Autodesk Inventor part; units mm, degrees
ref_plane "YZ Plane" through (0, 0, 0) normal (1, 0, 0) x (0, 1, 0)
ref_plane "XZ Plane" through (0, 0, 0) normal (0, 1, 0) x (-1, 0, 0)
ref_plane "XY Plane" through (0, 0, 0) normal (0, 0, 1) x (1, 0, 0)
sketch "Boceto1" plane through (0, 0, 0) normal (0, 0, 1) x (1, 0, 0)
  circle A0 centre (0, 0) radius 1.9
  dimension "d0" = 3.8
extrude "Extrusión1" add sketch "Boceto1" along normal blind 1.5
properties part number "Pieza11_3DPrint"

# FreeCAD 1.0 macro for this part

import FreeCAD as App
import Part
import Sketcher

V = App.Vector
Q = App.Units.Quantity

doc = App.newDocument("Part")
params = doc.addObject("Spreadsheet::Sheet", "Params")
for row, (alias, value) in enumerate([
    ("sketch1_diameter", "3.8 mm"),
    ("pad1_length", "1.5 mm"),
], start=1):
    params.set(f"A{row}", alias)
    params.set(f"B{row}", "=" + value)
    params.setAlias(f"B{row}", alias)

body = doc.addObject("PartDesign::Body", "Body")

sketch1 = body.newObject("Sketcher::SketchObject", "Sketch")
sketch1.AttachmentSupport = (doc.getObject("XY_Plane"), [""])
sketch1.MapMode = "FlatFace"
sketch1.addGeometry(Part.Circle(V(0, 0, 0), V(0, 0, 1), 1.9), False)
sketch1.addConstraint(Sketcher.Constraint("Coincident", 0, 3, -1, 1))
sketch1.addConstraint(Sketcher.Constraint("Diameter", 0, Q("3.8 mm")))
sketch1.setExpression("Constraints[1]", "Params.sketch1_diameter")
pad1 = body.newObject("PartDesign::Pad", "Pad")
pad1.Profile = sketch1
pad1.setExpression("Length", "Params.pad1_length")

doc.recompute()
